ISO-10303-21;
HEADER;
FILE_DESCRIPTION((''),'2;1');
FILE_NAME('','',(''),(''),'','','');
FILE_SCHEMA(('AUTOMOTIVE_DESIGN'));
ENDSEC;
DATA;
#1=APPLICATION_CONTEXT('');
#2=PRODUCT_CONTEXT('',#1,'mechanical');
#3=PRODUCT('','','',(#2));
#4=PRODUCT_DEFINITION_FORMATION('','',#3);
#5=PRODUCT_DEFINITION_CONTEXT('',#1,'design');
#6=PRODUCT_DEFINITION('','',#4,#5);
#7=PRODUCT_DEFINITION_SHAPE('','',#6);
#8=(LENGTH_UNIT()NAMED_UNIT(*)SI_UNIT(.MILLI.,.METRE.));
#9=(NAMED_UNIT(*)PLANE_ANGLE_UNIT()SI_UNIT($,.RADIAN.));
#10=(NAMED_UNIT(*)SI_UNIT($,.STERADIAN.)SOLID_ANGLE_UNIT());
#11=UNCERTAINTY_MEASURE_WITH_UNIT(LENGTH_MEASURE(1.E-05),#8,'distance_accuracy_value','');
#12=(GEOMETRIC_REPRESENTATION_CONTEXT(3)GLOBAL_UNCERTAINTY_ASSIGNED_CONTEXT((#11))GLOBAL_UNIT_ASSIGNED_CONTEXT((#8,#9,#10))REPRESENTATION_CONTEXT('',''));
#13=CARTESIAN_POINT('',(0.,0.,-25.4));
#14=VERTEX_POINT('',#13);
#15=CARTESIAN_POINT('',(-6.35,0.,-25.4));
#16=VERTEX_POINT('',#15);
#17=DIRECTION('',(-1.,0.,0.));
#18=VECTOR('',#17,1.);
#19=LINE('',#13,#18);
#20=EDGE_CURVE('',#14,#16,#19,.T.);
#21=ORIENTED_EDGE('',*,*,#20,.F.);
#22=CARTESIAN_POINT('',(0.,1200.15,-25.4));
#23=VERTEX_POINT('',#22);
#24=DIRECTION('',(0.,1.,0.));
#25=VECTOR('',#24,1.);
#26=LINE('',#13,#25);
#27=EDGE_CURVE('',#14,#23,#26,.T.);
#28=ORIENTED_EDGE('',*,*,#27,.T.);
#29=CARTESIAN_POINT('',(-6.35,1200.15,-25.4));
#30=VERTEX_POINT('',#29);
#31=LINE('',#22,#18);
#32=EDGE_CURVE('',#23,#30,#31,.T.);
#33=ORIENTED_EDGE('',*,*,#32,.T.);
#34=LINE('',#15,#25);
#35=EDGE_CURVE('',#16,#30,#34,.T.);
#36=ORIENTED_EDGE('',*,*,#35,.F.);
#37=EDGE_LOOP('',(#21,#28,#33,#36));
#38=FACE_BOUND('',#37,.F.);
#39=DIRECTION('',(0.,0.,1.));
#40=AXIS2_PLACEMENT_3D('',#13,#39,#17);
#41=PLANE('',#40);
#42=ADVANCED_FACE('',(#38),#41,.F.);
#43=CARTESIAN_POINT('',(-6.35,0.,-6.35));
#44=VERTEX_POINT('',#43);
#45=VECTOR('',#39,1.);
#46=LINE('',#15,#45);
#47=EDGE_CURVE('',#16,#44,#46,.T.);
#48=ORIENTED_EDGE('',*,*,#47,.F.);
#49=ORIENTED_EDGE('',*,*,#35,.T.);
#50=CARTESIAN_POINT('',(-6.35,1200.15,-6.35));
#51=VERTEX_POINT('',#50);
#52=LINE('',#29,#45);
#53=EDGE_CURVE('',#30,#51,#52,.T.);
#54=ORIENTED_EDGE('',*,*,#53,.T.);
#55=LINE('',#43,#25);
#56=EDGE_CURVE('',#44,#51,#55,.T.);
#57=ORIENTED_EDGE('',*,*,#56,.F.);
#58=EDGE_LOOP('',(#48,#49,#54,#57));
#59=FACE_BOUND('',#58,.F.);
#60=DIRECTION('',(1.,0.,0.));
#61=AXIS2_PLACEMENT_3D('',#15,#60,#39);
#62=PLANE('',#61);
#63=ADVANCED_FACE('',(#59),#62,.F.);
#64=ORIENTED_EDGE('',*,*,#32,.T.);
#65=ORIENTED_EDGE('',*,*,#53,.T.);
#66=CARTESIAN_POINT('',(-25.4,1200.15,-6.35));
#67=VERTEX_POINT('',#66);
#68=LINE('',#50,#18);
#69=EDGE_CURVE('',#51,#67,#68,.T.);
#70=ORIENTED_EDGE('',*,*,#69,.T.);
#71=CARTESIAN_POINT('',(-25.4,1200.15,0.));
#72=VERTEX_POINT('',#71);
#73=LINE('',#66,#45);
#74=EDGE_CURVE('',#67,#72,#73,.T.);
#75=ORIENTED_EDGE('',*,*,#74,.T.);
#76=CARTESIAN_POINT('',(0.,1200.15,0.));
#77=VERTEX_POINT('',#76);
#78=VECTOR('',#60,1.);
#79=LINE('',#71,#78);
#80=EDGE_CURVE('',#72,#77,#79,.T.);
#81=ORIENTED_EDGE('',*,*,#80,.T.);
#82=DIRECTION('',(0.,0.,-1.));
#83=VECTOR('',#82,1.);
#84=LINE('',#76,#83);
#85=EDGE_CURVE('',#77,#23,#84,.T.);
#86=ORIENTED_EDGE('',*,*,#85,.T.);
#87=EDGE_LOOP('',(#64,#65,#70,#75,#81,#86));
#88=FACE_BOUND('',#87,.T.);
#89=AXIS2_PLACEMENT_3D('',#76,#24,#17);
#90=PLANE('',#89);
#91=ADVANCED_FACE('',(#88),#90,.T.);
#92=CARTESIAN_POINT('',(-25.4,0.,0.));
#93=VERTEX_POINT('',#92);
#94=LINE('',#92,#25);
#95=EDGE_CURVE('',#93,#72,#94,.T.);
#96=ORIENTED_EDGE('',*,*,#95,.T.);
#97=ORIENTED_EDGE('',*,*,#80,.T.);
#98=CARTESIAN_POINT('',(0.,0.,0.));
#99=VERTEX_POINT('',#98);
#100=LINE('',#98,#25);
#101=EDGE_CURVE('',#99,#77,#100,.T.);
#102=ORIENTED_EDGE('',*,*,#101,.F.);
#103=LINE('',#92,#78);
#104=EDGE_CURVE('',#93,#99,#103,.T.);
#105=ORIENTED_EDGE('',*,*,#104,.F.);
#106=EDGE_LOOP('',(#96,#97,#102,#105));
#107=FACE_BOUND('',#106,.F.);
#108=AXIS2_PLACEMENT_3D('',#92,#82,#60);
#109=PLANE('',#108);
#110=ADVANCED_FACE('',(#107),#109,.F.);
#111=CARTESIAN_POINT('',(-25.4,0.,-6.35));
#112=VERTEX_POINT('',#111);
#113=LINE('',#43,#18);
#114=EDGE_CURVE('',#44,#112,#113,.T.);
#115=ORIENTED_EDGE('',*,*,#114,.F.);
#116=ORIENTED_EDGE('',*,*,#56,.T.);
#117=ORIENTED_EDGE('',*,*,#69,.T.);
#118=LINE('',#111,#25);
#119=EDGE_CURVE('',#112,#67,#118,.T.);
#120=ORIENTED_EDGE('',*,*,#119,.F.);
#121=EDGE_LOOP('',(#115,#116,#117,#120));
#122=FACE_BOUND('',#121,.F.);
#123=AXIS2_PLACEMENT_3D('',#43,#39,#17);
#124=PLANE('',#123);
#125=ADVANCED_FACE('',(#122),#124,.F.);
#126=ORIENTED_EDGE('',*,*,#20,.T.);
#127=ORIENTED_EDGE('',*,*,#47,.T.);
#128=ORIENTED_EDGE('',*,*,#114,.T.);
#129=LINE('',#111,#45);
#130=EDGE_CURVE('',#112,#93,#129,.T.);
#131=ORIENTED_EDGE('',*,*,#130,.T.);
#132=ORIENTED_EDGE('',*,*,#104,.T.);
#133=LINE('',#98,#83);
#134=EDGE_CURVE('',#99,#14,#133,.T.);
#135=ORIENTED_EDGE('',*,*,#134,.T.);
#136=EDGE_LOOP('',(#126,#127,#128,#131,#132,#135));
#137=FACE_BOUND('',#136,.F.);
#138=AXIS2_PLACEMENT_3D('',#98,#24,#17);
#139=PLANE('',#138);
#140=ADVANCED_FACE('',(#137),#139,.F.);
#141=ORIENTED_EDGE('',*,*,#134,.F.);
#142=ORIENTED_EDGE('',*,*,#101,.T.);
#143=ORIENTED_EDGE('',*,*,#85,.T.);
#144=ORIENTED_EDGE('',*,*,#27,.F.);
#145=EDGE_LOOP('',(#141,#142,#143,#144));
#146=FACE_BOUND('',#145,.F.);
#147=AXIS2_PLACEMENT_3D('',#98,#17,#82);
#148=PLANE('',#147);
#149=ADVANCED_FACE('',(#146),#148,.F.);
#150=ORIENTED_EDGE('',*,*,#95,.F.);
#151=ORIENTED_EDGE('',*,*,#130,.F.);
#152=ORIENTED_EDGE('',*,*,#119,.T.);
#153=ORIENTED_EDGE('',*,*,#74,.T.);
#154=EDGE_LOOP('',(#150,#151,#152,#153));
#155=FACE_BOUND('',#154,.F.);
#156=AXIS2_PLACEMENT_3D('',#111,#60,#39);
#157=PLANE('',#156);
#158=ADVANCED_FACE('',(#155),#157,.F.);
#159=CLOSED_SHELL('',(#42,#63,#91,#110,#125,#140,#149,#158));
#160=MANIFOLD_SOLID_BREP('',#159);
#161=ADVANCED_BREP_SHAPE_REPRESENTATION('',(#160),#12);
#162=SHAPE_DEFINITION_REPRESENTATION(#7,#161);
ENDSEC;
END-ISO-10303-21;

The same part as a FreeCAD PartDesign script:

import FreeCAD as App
import Part
import Sketcher
Q = App.Units.Quantity


def add_polygon(sketch, points):
    """Adds a closed chain of lines whose ends are joined by coincident constraints."""
    first, n = sketch.GeometryCount, len(points)
    for a, b in zip(points, points[1:] + points[:1]):
        sketch.addGeometry(Part.LineSegment(App.Vector(*a, 0), App.Vector(*b, 0)), False)
    for i in range(n):
        sketch.addConstraint(Sketcher.Constraint("Coincident", first + i, 2, first + (i + 1) % n, 1))

doc = App.newDocument("Part")
body = doc.addObject("PartDesign::Body", "Body")

sketch1 = body.newObject("Sketcher::SketchObject", "Sketch")
sketch1.AttachmentSupport = (doc.getObject("XZ_Plane"), [""])
sketch1.MapMode = "FlatFace"
add_polygon(sketch1, [(-25, 0), (0, 0), (0, -25), (-6, -25), (-6, -6), (-25, -6)])
sketch1.addConstraint(Sketcher.Constraint("Horizontal", 0))
sketch1.addConstraint(Sketcher.Constraint("Vertical", 1))
sketch1.addConstraint(Sketcher.Constraint("Horizontal", 2))
sketch1.addConstraint(Sketcher.Constraint("Vertical", 3))
sketch1.addConstraint(Sketcher.Constraint("Horizontal", 4))
sketch1.addConstraint(Sketcher.Constraint("Vertical", 5))
sketch1.addConstraint(Sketcher.Constraint("Coincident", 0, 2, -1, 1))
sketch1.addConstraint(Sketcher.Constraint("Equal", 0, 1))
sketch1.addConstraint(Sketcher.Constraint("Equal", 4, 3))
sketch1.addConstraint(Sketcher.Constraint("DistanceX", 0, 1, 0, 2, Q("1 in")))
sketch1.addConstraint(Sketcher.Constraint("DistanceX", 2, 2, 2, 1, Q("0.25 in")))
pad1 = body.newObject("PartDesign::Pad", "Pad")
pad1.Profile = sketch1
pad1.Length = Q("47.25 in")
pad1.Reversed = True

doc.recompute()
